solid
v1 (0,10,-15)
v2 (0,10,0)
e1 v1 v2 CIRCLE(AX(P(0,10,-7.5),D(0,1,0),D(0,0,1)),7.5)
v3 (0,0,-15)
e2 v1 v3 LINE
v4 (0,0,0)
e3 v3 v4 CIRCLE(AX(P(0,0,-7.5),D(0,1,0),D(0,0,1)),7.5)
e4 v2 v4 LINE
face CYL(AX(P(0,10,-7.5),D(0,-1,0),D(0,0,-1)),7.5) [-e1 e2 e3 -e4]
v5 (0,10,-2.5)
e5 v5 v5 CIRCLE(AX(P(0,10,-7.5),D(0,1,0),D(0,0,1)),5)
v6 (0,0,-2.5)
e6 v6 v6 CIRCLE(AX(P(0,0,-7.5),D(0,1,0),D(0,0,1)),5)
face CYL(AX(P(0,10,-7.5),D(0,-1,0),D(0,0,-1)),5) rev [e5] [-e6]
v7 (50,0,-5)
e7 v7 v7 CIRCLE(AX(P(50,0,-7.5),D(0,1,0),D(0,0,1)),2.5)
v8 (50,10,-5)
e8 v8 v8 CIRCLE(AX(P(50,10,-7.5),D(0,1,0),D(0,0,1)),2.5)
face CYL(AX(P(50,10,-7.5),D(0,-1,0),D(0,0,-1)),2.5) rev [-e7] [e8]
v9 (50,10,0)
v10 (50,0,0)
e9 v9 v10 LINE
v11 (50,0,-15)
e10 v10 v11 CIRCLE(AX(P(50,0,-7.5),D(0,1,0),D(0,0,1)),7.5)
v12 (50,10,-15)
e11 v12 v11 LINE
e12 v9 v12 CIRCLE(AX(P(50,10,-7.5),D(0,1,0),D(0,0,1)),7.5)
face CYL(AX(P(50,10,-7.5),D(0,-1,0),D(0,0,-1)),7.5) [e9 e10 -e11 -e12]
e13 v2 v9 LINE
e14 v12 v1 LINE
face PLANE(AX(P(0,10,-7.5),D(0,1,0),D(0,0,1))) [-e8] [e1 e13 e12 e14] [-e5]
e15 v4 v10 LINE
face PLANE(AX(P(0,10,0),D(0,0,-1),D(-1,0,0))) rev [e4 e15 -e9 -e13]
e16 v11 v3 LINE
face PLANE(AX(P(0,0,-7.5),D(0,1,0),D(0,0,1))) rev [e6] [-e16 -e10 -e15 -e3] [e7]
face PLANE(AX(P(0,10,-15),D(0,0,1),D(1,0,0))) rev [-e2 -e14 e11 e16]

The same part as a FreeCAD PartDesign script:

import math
import FreeCAD as App
import Part
import Sketcher
from FreeCAD import Vector
Q = App.Units.Quantity

doc = App.newDocument("Part")
body = doc.addObject("PartDesign::Body", "Body")

# Sketch on XZ plane
sketch1 = body.newObject("Sketcher::SketchObject", "Sketch")
sketch1.AttachmentSupport = (doc.getObject("XZ_Plane"), [""])
sketch1.MapMode = "FlatFace"
sketch1.addGeometry([
    Part.LineSegment(Vector(0, 0, 0), Vector(50, 0, 0)),  # 0
    Part.ArcOfCircle(Part.Circle(Vector(50, -7.5, 0), Vector(0, 0, 1), 7.5), math.radians(-90), math.radians(90)),  # 1
    Part.LineSegment(Vector(50, -15, 0), Vector(0, -15, 0)),  # 2
    Part.ArcOfCircle(Part.Circle(Vector(0, -7.5, 0), Vector(0, 0, 1), 7.5), math.radians(90), math.radians(270)),  # 3
    Part.Circle(Vector(0, -7.5, 0), Vector(0, 0, 1), 5),  # 4
    Part.Circle(Vector(50, -7.5, 0), Vector(0, 0, 1), 2.5),  # 5
], False)
sketch1.addConstraint([
    Sketcher.Constraint("Tangent", 0, 2, 1, 2),
    Sketcher.Constraint("Tangent", 1, 1, 2, 1),
    Sketcher.Constraint("Tangent", 2, 2, 3, 2),
    Sketcher.Constraint("Tangent", 3, 1, 0, 1),
    Sketcher.Constraint("Horizontal", 0),
    Sketcher.Constraint("Horizontal", 2),
    Sketcher.Constraint("Coincident", 3, 1, -1, 1),
    Sketcher.Constraint("Coincident", 4, 3, 3, 3),
    Sketcher.Constraint("Coincident", 5, 3, 1, 3),
    Sketcher.Constraint("Diameter", 4, Q("10 mm")),
    Sketcher.Constraint("Diameter", 5, Q("5 mm")),
    Sketcher.Constraint("Radius", 1, Q("7.5 mm")),
    Sketcher.Constraint("DistanceX", 0, 1, 0, 2, Q("50 mm")),
])
pad1 = body.newObject("PartDesign::Pad", "Pad")
pad1.Profile = sketch1
pad1.Length = 10
pad1.Reversed = True

doc.recompute()
